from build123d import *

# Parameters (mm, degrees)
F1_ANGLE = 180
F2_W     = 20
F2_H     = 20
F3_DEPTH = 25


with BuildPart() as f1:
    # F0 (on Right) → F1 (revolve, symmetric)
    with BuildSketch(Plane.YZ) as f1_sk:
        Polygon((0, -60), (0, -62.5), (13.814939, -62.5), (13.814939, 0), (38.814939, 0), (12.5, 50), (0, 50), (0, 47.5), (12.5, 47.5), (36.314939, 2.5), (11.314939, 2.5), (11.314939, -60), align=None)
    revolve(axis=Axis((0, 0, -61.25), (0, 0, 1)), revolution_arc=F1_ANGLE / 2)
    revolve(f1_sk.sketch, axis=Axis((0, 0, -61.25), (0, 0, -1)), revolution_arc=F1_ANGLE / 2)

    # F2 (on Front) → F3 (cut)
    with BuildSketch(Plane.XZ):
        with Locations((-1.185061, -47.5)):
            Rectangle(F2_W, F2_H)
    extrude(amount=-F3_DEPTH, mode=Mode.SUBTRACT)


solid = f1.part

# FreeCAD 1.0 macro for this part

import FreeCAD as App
import Part
import Sketcher


def add_polygon(sketch, points):
    """Adds a closed chain of lines whose ends are joined by coincident constraints."""
    first, n = sketch.GeometryCount, len(points)
    for a, b in zip(points, points[1:] + points[:1]):
        sketch.addGeometry(Part.LineSegment(App.Vector(*a, 0), App.Vector(*b, 0)), False)
    for i in range(n):
        sketch.addConstraint(Sketcher.Constraint("Coincident", first + i, 2, first + (i + 1) % n, 1))

doc = App.newDocument("Part")
body = doc.addObject("PartDesign::Body", "Body")

# Sketch on YZ plane
sketch1 = body.newObject("Sketcher::SketchObject", "Sketch")
sketch1.AttachmentSupport = (doc.getObject("YZ_Plane"), [""])
sketch1.MapMode = "FlatFace"
add_polygon(sketch1, [(0, -60), (0, -62.5), (13.8, -62.5), (13.8, 0), (38.8, 0), (12.5, 50), (0, 50), (0, 47.5), (12.5, 47.5), (36.3, 2.5), (11.3, 2.5), (11.3, -60)])  # lines 0-11
sketch1.addConstraint([
    Sketcher.Constraint("Vertical", 0),
    Sketcher.Constraint("Horizontal", 1),
    Sketcher.Constraint("Vertical", 2),
    Sketcher.Constraint("Horizontal", 3),
    Sketcher.Constraint("Horizontal", 5),
    Sketcher.Constraint("Vertical", 6),
    Sketcher.Constraint("Horizontal", 7),
    Sketcher.Constraint("Horizontal", 9),
    Sketcher.Constraint("Vertical", 10),
    Sketcher.Constraint("Horizontal", 11),
    Sketcher.Constraint("PointOnObject", 0, 2, -2),
    Sketcher.Constraint("PointOnObject", 2, 2, -1),
    Sketcher.Constraint("PointOnObject", 5, 2, -2),
    Sketcher.Constraint("Vertical", 4, 2, 7, 2),
    Sketcher.Constraint("Equal", 3, 9),
    Sketcher.Constraint("Equal", 0, 6),
    Sketcher.Constraint("Equal", 2, 10),
    Sketcher.Constraint("DistanceX", 3, 1, 3, 2, 25.0),
    Sketcher.Constraint("DistanceX", 5, 2, 5, 1, 12.5),
    Sketcher.Constraint("DistanceY", 0, 2, 0, 1, 2.5),
    Sketcher.Constraint("DistanceY", 2, 1, 2, 2, 62.5),
    Sketcher.Constraint("DistanceY", -1, 1, 4, 2, 50.0),
    Sketcher.Constraint("DistanceX", 8, 2, 3, 2, 2.5),
    Sketcher.Constraint("Distance", 4, 56.502),
])
revolution = body.newObject("PartDesign::Revolution", "Revolution")
revolution.Profile = sketch1
revolution.ReferenceAxis = (sketch1, ["V_Axis"])
revolution.Angle = 90

# Sketch on YZ plane
sketch2 = body.newObject("Sketcher::SketchObject", "Sketch001")
sketch2.AttachmentSupport = (doc.getObject("YZ_Plane"), [""])
sketch2.MapMode = "FlatFace"
add_polygon(sketch2, [(0, -60), (0, -62.5), (13.8, -62.5), (13.8, 0), (38.8, 0), (12.5, 50), (0, 50), (0, 47.5), (12.5, 47.5), (36.3, 2.5), (11.3, 2.5), (11.3, -60)])  # lines 0-11
sketch2.addConstraint([
    Sketcher.Constraint("Vertical", 0),
    Sketcher.Constraint("Horizontal", 1),
    Sketcher.Constraint("Vertical", 2),
    Sketcher.Constraint("Horizontal", 3),
    Sketcher.Constraint("Horizontal", 5),
    Sketcher.Constraint("Vertical", 6),
    Sketcher.Constraint("Horizontal", 7),
    Sketcher.Constraint("Horizontal", 9),
    Sketcher.Constraint("Vertical", 10),
    Sketcher.Constraint("Horizontal", 11),
    Sketcher.Constraint("PointOnObject", 0, 2, -2),
    Sketcher.Constraint("PointOnObject", 2, 2, -1),
    Sketcher.Constraint("PointOnObject", 5, 2, -2),
    Sketcher.Constraint("Vertical", 4, 2, 7, 2),
    Sketcher.Constraint("Equal", 3, 9),
    Sketcher.Constraint("Equal", 0, 6),
    Sketcher.Constraint("Equal", 2, 10),
    Sketcher.Constraint("DistanceX", 3, 1, 3, 2, 25.0),
    Sketcher.Constraint("DistanceX", 5, 2, 5, 1, 12.5),
    Sketcher.Constraint("DistanceY", 0, 2, 0, 1, 2.5),
    Sketcher.Constraint("DistanceY", 2, 1, 2, 2, 62.5),
    Sketcher.Constraint("DistanceY", -1, 1, 4, 2, 50.0),
    Sketcher.Constraint("DistanceX", 8, 2, 3, 2, 2.5),
    Sketcher.Constraint("Distance", 4, 56.502),
])
revolution2 = body.newObject("PartDesign::Revolution", "Revolution001")
revolution2.Profile = sketch2
revolution2.ReferenceAxis = (sketch2, ["V_Axis"])
revolution2.Angle = 90
revolution2.Reversed = True

# Sketch on XZ plane
sketch3 = body.newObject("Sketcher::SketchObject", "Sketch002")
sketch3.AttachmentSupport = (doc.getObject("XZ_Plane"), [""])
sketch3.MapMode = "FlatFace"
add_polygon(sketch3, [(-11, -38), (-11, -58), (9, -58), (9, -38)])  # lines 0-3
sketch3.addConstraint([
    Sketcher.Constraint("Vertical", 0),
    Sketcher.Constraint("Horizontal", 1),
    Sketcher.Constraint("Vertical", 2),
    Sketcher.Constraint("Horizontal", 3),
    Sketcher.Constraint("Equal", 3, 0),
    Sketcher.Constraint("DistanceX", 1, 1, 1, 2, 20.0),
    Sketcher.Constraint("DistanceY", 0, 2, -1, 1, 57.5),
    Sketcher.Constraint("DistanceX", 0, 2, -1, 1, 11.185061),
])
pocket1 = body.newObject("PartDesign::Pocket", "Pocket")
pocket1.Profile = sketch3
pocket1.Length = 25

doc.recompute()
